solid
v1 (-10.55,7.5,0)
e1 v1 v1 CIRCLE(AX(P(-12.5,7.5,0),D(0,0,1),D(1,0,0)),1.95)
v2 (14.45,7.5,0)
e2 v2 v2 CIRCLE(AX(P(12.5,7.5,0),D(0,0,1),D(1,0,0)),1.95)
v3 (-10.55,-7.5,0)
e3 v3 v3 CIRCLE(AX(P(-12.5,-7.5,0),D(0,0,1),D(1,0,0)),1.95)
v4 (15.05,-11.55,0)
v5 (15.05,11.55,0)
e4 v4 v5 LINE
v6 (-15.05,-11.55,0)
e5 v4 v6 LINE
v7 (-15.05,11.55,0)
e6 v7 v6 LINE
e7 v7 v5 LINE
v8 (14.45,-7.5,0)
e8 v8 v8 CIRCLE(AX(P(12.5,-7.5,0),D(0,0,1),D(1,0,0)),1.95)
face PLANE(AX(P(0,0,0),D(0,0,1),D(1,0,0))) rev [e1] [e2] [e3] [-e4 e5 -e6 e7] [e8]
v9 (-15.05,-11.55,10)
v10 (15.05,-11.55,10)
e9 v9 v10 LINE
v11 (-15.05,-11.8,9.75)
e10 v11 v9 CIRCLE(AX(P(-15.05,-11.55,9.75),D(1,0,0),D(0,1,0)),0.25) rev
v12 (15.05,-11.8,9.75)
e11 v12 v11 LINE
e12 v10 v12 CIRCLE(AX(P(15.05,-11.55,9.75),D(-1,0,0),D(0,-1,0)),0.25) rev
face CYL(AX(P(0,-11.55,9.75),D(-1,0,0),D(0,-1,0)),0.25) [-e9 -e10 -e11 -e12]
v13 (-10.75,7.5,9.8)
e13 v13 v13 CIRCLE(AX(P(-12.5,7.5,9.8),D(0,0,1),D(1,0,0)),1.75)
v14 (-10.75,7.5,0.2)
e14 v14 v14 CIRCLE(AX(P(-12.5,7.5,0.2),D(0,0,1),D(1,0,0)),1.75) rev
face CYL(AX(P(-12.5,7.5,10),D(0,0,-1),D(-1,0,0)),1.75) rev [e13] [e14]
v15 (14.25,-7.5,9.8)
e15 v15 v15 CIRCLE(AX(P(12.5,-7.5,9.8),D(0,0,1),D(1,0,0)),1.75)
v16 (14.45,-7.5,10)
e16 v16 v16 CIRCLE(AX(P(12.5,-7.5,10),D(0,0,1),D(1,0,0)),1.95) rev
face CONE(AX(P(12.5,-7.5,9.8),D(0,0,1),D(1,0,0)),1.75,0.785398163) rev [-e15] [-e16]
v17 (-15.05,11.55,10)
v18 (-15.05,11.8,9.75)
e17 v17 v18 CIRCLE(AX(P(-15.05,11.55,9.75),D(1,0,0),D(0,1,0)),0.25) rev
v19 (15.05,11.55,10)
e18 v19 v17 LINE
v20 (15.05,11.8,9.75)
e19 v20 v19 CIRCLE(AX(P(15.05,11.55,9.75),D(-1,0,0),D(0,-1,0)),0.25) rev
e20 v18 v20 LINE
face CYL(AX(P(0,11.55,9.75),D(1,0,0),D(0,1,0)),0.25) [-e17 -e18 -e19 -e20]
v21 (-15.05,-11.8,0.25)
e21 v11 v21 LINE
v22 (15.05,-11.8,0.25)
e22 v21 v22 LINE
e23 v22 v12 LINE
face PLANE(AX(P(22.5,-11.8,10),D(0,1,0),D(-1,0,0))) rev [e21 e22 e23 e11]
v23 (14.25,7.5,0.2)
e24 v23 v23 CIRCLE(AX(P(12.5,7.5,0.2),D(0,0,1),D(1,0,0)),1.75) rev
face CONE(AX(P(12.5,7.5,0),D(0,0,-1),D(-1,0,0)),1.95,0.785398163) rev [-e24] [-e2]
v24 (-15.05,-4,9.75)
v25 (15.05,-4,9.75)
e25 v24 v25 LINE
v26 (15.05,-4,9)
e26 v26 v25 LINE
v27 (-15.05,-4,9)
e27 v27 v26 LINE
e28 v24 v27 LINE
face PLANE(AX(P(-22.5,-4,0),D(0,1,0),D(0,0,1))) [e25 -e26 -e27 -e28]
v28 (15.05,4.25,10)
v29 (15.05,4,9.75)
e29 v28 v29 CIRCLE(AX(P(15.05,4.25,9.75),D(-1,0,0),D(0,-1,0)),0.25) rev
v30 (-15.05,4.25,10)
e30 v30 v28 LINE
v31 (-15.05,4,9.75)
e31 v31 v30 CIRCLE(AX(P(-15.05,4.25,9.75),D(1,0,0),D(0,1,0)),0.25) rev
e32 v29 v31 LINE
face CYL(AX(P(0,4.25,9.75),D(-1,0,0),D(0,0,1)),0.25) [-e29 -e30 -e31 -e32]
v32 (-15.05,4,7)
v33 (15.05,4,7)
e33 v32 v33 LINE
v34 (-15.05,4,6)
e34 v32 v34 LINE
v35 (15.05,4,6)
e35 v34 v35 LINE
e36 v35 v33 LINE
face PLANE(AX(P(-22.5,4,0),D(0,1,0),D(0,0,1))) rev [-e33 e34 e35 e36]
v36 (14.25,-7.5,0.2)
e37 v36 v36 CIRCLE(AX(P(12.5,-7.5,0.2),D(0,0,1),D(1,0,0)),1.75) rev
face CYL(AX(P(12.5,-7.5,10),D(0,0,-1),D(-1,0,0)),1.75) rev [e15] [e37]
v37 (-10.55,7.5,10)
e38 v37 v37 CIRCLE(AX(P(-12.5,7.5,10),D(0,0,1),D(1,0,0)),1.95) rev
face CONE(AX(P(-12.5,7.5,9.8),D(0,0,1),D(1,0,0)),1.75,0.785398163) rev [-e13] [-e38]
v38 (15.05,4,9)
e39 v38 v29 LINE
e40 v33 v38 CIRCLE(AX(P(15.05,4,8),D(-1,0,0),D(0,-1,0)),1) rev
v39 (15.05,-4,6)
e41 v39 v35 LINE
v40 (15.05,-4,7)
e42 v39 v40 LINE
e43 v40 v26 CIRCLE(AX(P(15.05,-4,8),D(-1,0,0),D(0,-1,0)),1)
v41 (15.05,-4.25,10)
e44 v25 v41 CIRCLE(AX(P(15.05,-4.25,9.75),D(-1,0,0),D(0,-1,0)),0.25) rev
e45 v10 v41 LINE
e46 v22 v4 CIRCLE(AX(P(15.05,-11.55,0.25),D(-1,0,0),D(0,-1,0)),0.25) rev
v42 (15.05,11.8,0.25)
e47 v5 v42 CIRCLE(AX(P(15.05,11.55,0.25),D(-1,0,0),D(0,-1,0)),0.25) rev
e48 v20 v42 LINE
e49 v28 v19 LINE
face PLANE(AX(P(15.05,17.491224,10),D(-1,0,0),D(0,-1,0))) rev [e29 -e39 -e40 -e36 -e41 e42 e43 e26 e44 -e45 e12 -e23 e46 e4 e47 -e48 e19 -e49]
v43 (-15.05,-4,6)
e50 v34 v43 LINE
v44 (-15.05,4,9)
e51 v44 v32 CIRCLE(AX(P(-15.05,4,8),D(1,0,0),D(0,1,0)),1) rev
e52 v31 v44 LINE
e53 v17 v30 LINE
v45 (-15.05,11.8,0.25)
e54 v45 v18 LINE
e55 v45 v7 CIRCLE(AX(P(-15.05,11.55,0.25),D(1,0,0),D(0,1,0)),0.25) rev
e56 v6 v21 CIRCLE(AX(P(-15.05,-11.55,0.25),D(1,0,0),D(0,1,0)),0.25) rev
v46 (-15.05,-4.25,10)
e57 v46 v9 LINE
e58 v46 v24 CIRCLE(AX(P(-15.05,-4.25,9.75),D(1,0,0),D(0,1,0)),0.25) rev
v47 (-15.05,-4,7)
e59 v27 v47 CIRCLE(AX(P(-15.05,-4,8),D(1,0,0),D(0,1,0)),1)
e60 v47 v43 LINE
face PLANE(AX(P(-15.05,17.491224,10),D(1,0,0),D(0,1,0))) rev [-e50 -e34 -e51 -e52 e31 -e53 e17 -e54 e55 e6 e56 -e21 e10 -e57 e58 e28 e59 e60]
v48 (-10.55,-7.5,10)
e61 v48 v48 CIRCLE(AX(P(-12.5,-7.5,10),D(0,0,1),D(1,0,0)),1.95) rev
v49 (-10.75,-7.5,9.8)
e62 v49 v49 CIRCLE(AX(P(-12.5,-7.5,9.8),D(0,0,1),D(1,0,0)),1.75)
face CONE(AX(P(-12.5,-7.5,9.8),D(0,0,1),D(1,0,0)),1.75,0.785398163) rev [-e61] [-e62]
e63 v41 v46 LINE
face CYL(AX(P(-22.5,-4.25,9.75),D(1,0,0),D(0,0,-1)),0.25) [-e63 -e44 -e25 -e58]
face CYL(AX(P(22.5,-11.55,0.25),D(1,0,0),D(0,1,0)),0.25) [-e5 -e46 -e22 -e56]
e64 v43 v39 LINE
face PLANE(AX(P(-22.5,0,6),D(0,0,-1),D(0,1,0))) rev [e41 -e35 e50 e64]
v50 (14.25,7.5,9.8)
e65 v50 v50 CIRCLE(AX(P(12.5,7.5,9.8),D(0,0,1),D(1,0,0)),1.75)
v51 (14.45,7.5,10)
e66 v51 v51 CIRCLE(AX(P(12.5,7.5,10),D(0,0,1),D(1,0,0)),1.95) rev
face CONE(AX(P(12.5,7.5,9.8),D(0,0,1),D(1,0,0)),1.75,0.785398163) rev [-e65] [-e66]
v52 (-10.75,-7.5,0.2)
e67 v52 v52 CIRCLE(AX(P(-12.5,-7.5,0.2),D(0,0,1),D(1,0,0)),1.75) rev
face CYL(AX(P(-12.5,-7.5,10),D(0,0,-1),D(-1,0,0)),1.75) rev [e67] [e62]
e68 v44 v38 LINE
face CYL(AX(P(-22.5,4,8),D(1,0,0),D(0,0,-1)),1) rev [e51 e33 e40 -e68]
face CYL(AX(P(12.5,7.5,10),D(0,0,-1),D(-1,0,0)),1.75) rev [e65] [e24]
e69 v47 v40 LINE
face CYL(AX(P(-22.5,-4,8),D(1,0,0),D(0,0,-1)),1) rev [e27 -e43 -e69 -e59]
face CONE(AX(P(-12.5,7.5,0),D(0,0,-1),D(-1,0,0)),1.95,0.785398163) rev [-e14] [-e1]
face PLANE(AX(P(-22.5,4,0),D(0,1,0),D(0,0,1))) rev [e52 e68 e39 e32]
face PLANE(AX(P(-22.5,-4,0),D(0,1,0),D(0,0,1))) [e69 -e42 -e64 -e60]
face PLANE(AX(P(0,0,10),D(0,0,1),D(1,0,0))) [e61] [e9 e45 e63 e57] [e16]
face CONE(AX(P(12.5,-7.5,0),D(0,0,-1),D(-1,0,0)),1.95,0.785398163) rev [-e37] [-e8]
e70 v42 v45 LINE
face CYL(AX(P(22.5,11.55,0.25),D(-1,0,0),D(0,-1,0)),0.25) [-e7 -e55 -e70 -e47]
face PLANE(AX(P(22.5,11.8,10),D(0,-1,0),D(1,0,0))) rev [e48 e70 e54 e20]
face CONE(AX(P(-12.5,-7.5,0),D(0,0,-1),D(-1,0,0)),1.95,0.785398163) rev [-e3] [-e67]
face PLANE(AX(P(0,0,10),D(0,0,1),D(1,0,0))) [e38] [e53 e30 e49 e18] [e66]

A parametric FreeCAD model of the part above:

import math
import FreeCAD as App
import Part
import Sketcher


def edges_at(feature, points):
    """Names of the edges that pass closest to the given points."""
    edges = feature.Shape.Edges
    near = lambda p: min(range(len(edges)), key=lambda i: edges[i].distToShape(Part.Vertex(*p))[0])
    return sorted({f"Edge{near(p) + 1}" for p in points})


def add_polygon(sketch, points):
    """Adds a closed chain of lines whose ends are joined by coincident constraints."""
    first, n = sketch.GeometryCount, len(points)
    for a, b in zip(points, points[1:] + points[:1]):
        sketch.addGeometry(Part.LineSegment(App.Vector(*a, 0), App.Vector(*b, 0)), False)
    for i in range(n):
        sketch.addConstraint(Sketcher.Constraint("Coincident", first + i, 2, first + (i + 1) % n, 1))

doc = App.newDocument("Part")
body = doc.addObject("PartDesign::Body", "Body")

# Sketch on XY plane
sketch1 = doc.addObject("Sketcher::SketchObject", "Sketch")
body.addObject(sketch1)
sketch1.AttachmentSupport = (doc.XY_Plane, [""])
sketch1.MapMode = "FlatFace"
add_polygon(sketch1, [(-22.5, 11.8), (-22.5, -11.8), (22.5, -11.8), (22.5, 11.8)])  # lines 0-3
sketch1.addGeometry(Part.Circle(App.Vector(-12.5, -7.5, 0), App.Vector(0, 0, 1), 1.75), False)  # 4
sketch1.addGeometry(Part.Circle(App.Vector(12.5, -7.5, 0), App.Vector(0, 0, 1), 1.75), False)  # 5
sketch1.addGeometry(Part.Circle(App.Vector(-12.5, 7.5, 0), App.Vector(0, 0, 1), 1.75), False)  # 6
sketch1.addGeometry(Part.Circle(App.Vector(12.5, 7.5, 0), App.Vector(0, 0, 1), 1.75), False)  # 7
sketch1.addConstraint(Sketcher.Constraint("Vertical", 0))
sketch1.addConstraint(Sketcher.Constraint("Horizontal", 1))
sketch1.addConstraint(Sketcher.Constraint("Vertical", 2))
sketch1.addConstraint(Sketcher.Constraint("Horizontal", 3))
sketch1.addConstraint(Sketcher.Constraint("Equal", 4, 5))
sketch1.addConstraint(Sketcher.Constraint("Equal", 5, 6))
sketch1.addConstraint(Sketcher.Constraint("Equal", 6, 7))
sketch1.addConstraint(Sketcher.Constraint("Symmetric", 5, 3, 6, 3, -1, 1))
sketch1.addConstraint(Sketcher.Constraint("Symmetric", 4, 3, 7, 3, -1, 1))
sketch1.addConstraint(Sketcher.Constraint("Symmetric", 0, 2, 2, 2, -1, 1))
sketch1.addConstraint(Sketcher.Constraint("Symmetric", 4, 3, 5, 3, -2))
sketch1.addConstraint(Sketcher.Constraint("Diameter", 4, 3.5))
sketch1.addConstraint(Sketcher.Constraint("DistanceX", 1, 1, 1, 2, 45.0))
sketch1.addConstraint(Sketcher.Constraint("DistanceY", 0, 2, 0, 1, 23.6))
sketch1.addConstraint(Sketcher.Constraint("DistanceX", 4, 3, 5, 3, 25.0))
sketch1.addConstraint(Sketcher.Constraint("DistanceY", 4, 3, 6, 3, 15.0))
pad1 = doc.addObject("PartDesign::Pad", "Pad")
body.addObject(pad1)
pad1.Profile = sketch1
pad1.Length = 10

# Sketch on YZ plane
sketch2 = doc.addObject("Sketcher::SketchObject", "Sketch001")
body.addObject(sketch2)
sketch2.AttachmentSupport = (doc.YZ_Plane, [""])
sketch2.MapMode = "FlatFace"
sketch2.AttachmentOffset = App.Placement(App.Vector(0, 0, 22.5), App.Rotation())
sketch2.addGeometry(Part.ArcOfCircle(Part.Circle(App.Vector(4, 8, 0), App.Vector(0, 0, 1), 1), math.radians(-90), math.radians(90)), False)
sketch2.addGeometry(Part.LineSegment(App.Vector(4, 9, 0), App.Vector(4, 10, 0)), False)
sketch2.addGeometry(Part.LineSegment(App.Vector(4, 10, 0), App.Vector(-4, 10, 0)), False)
sketch2.addGeometry(Part.LineSegment(App.Vector(-4, 10, 0), App.Vector(-4, 9, 0)), False)
sketch2.addGeometry(Part.ArcOfCircle(Part.Circle(App.Vector(-4, 8, 0), App.Vector(0, 0, 1), 1), math.radians(90), math.radians(270)), False)
sketch2.addGeometry(Part.LineSegment(App.Vector(-4, 7, 0), App.Vector(-4, 6, 0)), False)
sketch2.addGeometry(Part.LineSegment(App.Vector(-4, 6, 0), App.Vector(4, 6, 0)), False)
sketch2.addGeometry(Part.LineSegment(App.Vector(4, 6, 0), App.Vector(4, 7, 0)), False)
sketch2.addConstraint(Sketcher.Constraint("Coincident", 0, 2, 1, 1))
sketch2.addConstraint(Sketcher.Constraint("Coincident", 1, 2, 2, 1))
sketch2.addConstraint(Sketcher.Constraint("Coincident", 2, 2, 3, 1))
sketch2.addConstraint(Sketcher.Constraint("Coincident", 3, 2, 4, 1))
sketch2.addConstraint(Sketcher.Constraint("Coincident", 4, 2, 5, 1))
sketch2.addConstraint(Sketcher.Constraint("Coincident", 5, 2, 6, 1))
sketch2.addConstraint(Sketcher.Constraint("Coincident", 6, 2, 7, 1))
sketch2.addConstraint(Sketcher.Constraint("Coincident", 7, 2, 0, 1))
sketch2.addConstraint(Sketcher.Constraint("Vertical", 1))
sketch2.addConstraint(Sketcher.Constraint("Horizontal", 2))
sketch2.addConstraint(Sketcher.Constraint("Vertical", 3))
sketch2.addConstraint(Sketcher.Constraint("Vertical", 5))
sketch2.addConstraint(Sketcher.Constraint("Horizontal", 6))
sketch2.addConstraint(Sketcher.Constraint("Vertical", 7))
sketch2.addConstraint(Sketcher.Constraint("Equal", 0, 4))
sketch2.addConstraint(Sketcher.Constraint("Symmetric", 0, 3, 4, 3, -2))
sketch2.addConstraint(Sketcher.Constraint("Vertical", 4, 3, 2, 2))
sketch2.addConstraint(Sketcher.Constraint("Vertical", 3, 2, 4, 2))
sketch2.addConstraint(Sketcher.Constraint("Vertical", 1, 2, 6, 2))
sketch2.addConstraint(Sketcher.Constraint("Equal", 3, 5))
sketch2.addConstraint(Sketcher.Constraint("Radius", 0, 1.0))
sketch2.addConstraint(Sketcher.Constraint("DistanceX", 2, 2, 2, 1, 8.0))
sketch2.addConstraint(Sketcher.Constraint("DistanceY", 1, 1, 1, 2, 1.0))
sketch2.addConstraint(Sketcher.Constraint("DistanceX", -1, 1, 0, 3, 4.0))
sketch2.addConstraint(Sketcher.Constraint("DistanceY", -1, 1, 0, 3, 8.0))
pocket1 = doc.addObject("PartDesign::Pocket", "Pocket")
body.addObject(pocket1)
pocket1.Profile = sketch2
pocket1.Type = "ThroughAll"
doc.recompute()

fillet = doc.addObject("PartDesign::Fillet", "Fillet")
body.addObject(fillet)
fillet.Base = (pocket1, edges_at(pocket1, [
    (22.5, -7.9, 10),
    (0, 11.8, 10),
    (22.5, 7.9, 10),
    (-22.5, -7.9, 10),
    (0, -4, 10),
    (-22.5, 7.9, 10),
    (0, 4, 10),
    (0, 11.8, 0),
    (22.5, 0, 0),
    (0, -11.8, 0),
    (-22.5, 0, 0),
    (0, -11.8, 10),
    (-22.5, 11.8, 5),
    (22.5, 11.8, 5),
    (22.5, -11.8, 5),
    (-22.5, -11.8, 5),
]))
fillet.Radius = 0.25
doc.recompute()

chamfer = doc.addObject("PartDesign::Chamfer", "Chamfer")
body.addObject(chamfer)
chamfer.Base = (fillet, edges_at(fillet, [
    (-14.25, 7.5, 0),
    (-14.25, 7.5, 10),
    (10.75, 7.5, 0),
    (10.75, 7.5, 10),
    (10.75, -7.5, 0),
    (10.75, -7.5, 10),
    (-14.25, -7.5, 0),
    (-14.25, -7.5, 10),
]))
chamfer.Size = 0.2

# Sketch on XY plane
sketch3 = doc.addObject("Sketcher::SketchObject", "Sketch002")
body.addObject(sketch3)
sketch3.AttachmentSupport = (doc.XY_Plane, [""])
sketch3.MapMode = "FlatFace"
add_polygon(sketch3, [(26.055139, 17.491224), (26.055139, -15.025643), (15.05, -15.025643), (15.05, 17.491224)])  # lines 0-3
add_polygon(sketch3, [(-15.05, 17.491224), (-15.05, -18.626121), (-25.05, -18.626121), (-25.05, 17.491224)])  # lines 4-7
sketch3.addConstraint(Sketcher.Constraint("Vertical", 0))
sketch3.addConstraint(Sketcher.Constraint("Horizontal", 1))
sketch3.addConstraint(Sketcher.Constraint("Vertical", 2))
sketch3.addConstraint(Sketcher.Constraint("Horizontal", 3))
sketch3.addConstraint(Sketcher.Constraint("Vertical", 4))
sketch3.addConstraint(Sketcher.Constraint("Horizontal", 5))
sketch3.addConstraint(Sketcher.Constraint("Vertical", 6))
sketch3.addConstraint(Sketcher.Constraint("Horizontal", 7))
sketch3.addConstraint(Sketcher.Constraint("Symmetric", 2, 2, 7, 2, -2))
sketch3.addConstraint(Sketcher.Constraint("DistanceX", 5, 2, 5, 1, 10.0))
sketch3.addConstraint(Sketcher.Constraint("DistanceX", 4, 2, 1, 2, 30.1))
sketch3.addConstraint(Sketcher.Constraint("DistanceX", 1, 2, 1, 1, 11.005139))
sketch3.addConstraint(Sketcher.Constraint("DistanceY", 0, 2, 0, 1, 32.516867))
sketch3.addConstraint(Sketcher.Constraint("DistanceY", 4, 2, 4, 1, 36.117345))
sketch3.addConstraint(Sketcher.Constraint("DistanceY", 4, 2, -1, 1, 18.626121))
pocket2 = doc.addObject("PartDesign::Pocket", "Pocket001")
body.addObject(pocket2)
pocket2.Profile = sketch3
pocket2.Length = 10
pocket2.Reversed = True

doc.recompute()
